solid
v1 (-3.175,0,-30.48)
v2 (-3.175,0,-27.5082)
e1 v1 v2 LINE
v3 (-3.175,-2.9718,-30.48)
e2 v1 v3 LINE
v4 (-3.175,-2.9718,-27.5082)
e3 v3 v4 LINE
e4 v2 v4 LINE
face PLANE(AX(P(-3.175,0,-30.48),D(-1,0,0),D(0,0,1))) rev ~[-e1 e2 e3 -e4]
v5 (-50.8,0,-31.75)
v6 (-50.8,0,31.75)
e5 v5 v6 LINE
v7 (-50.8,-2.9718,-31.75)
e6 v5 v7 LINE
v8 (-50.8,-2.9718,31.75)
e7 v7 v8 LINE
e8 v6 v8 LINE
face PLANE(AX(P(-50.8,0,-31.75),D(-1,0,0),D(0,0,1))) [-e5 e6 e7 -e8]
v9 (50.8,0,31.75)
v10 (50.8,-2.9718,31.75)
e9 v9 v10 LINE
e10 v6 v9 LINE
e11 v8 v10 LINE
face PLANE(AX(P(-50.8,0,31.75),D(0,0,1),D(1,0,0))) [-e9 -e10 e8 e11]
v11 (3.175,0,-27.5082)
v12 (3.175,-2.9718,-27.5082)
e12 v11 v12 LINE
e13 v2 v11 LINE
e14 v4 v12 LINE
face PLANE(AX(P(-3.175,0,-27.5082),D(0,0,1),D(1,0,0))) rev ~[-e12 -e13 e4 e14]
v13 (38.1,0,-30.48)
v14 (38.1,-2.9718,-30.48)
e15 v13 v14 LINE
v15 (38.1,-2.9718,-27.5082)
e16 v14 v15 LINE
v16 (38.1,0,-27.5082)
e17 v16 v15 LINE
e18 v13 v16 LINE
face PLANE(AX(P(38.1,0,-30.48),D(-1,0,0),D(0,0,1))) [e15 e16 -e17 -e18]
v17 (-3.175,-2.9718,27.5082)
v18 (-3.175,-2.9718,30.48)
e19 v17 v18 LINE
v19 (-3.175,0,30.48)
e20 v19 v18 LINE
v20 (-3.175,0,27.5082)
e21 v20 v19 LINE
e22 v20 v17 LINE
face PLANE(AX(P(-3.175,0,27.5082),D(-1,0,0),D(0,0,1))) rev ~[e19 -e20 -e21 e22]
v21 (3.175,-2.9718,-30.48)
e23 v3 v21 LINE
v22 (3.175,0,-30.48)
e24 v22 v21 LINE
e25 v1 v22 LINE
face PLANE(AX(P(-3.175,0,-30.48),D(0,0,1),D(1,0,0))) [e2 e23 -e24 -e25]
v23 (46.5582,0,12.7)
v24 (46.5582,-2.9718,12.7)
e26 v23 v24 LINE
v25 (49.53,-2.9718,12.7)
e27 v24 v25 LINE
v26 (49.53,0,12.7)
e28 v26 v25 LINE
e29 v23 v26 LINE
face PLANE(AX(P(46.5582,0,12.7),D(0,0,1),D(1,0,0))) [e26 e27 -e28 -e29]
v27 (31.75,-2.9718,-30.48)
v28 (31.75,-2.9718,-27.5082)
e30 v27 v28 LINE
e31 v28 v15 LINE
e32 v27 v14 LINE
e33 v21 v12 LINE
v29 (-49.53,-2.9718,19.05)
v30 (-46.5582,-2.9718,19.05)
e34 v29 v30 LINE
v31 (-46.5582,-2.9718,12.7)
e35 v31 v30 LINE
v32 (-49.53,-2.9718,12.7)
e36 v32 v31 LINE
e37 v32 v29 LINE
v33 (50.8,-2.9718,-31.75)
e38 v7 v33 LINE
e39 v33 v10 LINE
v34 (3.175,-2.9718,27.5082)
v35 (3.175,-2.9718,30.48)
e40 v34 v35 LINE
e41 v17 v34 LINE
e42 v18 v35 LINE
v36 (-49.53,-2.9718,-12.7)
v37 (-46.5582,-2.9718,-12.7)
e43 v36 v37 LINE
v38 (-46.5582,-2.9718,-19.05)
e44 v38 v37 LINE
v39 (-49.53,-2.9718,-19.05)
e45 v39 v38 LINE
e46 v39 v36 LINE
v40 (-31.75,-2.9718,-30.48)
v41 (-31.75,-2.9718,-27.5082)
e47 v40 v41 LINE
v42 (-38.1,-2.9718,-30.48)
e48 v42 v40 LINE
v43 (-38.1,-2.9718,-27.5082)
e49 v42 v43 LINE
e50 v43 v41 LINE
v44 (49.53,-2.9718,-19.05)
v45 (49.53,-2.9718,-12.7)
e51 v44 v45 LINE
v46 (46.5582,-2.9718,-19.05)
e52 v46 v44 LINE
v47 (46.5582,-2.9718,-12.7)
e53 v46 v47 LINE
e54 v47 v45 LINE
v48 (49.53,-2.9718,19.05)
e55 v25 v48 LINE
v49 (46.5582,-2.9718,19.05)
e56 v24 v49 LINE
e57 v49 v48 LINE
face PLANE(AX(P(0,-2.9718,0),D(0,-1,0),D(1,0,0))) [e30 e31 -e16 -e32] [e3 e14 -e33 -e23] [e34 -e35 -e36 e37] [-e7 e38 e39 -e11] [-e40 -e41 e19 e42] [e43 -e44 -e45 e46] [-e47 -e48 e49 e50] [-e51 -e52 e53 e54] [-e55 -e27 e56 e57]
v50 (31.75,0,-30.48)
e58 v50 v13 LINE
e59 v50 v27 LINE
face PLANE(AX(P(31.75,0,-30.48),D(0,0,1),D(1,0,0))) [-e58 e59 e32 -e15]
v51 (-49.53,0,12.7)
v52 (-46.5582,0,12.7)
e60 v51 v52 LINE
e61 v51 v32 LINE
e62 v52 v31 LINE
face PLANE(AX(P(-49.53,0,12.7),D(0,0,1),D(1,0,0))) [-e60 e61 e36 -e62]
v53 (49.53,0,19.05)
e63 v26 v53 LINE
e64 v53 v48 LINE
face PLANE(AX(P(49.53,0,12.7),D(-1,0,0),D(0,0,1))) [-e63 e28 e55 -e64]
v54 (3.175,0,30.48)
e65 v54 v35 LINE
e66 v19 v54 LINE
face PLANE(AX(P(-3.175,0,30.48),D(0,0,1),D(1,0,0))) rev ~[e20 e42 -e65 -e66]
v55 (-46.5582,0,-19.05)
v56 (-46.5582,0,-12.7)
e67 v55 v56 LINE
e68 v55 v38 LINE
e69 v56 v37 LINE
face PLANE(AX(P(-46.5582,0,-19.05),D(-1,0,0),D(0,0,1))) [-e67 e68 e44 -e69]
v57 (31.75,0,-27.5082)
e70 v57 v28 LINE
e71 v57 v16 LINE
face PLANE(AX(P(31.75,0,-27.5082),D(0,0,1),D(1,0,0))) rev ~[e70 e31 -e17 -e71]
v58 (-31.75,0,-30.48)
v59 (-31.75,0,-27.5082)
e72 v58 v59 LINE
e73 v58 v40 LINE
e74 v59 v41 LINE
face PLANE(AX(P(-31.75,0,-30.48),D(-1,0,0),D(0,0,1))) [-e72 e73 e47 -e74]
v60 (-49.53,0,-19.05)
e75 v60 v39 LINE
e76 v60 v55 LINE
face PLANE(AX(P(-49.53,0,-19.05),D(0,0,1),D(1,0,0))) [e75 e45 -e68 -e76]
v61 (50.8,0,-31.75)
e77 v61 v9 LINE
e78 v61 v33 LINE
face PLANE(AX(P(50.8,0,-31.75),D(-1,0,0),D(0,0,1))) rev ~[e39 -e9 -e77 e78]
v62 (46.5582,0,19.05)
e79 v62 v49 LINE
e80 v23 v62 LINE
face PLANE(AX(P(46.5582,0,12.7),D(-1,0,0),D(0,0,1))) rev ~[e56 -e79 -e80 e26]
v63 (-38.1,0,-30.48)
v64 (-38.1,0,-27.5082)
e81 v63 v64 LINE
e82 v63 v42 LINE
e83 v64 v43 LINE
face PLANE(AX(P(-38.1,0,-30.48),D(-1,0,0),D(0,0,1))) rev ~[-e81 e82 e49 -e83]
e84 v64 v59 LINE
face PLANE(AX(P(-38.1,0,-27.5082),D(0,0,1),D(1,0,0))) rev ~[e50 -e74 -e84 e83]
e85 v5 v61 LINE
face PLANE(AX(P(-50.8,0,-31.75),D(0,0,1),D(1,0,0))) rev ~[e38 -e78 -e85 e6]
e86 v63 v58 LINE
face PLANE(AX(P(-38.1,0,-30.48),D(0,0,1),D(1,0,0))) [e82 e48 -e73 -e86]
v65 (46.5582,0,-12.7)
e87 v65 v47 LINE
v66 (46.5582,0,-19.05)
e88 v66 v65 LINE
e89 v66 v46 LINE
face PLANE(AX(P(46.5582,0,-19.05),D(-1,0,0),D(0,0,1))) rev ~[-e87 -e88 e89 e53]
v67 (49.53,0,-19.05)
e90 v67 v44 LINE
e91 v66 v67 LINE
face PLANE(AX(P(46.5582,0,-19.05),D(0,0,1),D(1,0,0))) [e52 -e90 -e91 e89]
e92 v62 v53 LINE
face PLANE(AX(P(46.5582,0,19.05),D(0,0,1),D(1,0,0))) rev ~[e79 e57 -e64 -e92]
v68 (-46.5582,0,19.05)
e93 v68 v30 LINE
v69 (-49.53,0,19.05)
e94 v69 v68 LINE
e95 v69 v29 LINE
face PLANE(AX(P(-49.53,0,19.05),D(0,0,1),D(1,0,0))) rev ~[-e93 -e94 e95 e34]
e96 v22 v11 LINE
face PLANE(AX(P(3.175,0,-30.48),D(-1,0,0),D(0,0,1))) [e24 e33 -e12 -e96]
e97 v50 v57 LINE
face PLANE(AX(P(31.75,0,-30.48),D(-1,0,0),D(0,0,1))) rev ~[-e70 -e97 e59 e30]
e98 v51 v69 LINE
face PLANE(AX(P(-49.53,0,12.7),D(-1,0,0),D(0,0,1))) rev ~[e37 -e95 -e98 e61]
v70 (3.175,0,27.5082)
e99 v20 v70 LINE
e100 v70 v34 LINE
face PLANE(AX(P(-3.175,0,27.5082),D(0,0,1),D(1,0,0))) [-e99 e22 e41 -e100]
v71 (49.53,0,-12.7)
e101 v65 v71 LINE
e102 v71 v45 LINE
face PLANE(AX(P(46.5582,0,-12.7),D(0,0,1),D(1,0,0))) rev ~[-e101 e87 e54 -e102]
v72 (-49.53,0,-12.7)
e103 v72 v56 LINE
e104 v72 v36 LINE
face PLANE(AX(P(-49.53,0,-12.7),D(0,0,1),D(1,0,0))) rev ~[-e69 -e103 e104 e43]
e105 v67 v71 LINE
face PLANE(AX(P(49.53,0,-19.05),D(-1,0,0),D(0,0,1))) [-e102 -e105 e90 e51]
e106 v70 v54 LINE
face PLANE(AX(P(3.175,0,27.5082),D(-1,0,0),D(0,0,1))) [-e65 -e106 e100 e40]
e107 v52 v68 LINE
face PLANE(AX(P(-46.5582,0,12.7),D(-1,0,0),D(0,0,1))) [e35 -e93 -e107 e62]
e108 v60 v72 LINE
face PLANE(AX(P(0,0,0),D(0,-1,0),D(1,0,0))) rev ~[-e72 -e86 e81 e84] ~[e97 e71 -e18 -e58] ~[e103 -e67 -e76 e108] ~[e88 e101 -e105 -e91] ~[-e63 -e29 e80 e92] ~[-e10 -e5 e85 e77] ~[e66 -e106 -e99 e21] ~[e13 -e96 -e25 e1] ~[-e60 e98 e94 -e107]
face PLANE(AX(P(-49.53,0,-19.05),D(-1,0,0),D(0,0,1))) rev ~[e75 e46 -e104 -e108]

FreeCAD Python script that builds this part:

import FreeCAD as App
import Part
import Sketcher
Q = App.Units.Quantity

doc = App.newDocument("Part")
body = doc.addObject("PartDesign::Body", "Body")

sketch1 = doc.addObject("Sketcher::SketchObject", "Sketch")
body.addObject(sketch1)
sketch1.AttachmentSupport = (doc.XZ_Plane, [""])
sketch1.MapMode = "FlatFace"
sketch1.addGeometry(Part.LineSegment(App.Vector(-50.8, 31.8, 0), App.Vector(-50.8, -31.8, 0)), False)
sketch1.addGeometry(Part.LineSegment(App.Vector(-50.8, -31.8, 0), App.Vector(50.8, -31.8, 0)), False)
sketch1.addGeometry(Part.LineSegment(App.Vector(50.8, -31.8, 0), App.Vector(50.8, 31.8, 0)), False)
sketch1.addGeometry(Part.LineSegment(App.Vector(50.8, 31.8, 0), App.Vector(-50.8, 31.8, 0)), False)
sketch1.addGeometry(Part.LineSegment(App.Vector(-31.8, -30.5, 0), App.Vector(-38.1, -30.5, 0)), False)
sketch1.addGeometry(Part.LineSegment(App.Vector(-38.1, -30.5, 0), App.Vector(-38.1, -27.5, 0)), False)
sketch1.addGeometry(Part.LineSegment(App.Vector(-38.1, -27.5, 0), App.Vector(-31.8, -27.5, 0)), False)
sketch1.addGeometry(Part.LineSegment(App.Vector(-31.8, -27.5, 0), App.Vector(-31.8, -30.5, 0)), False)
sketch1.addGeometry(Part.LineSegment(App.Vector(-46.6, -19.1, 0), App.Vector(-49.5, -19.1, 0)), False)
sketch1.addGeometry(Part.LineSegment(App.Vector(-49.5, -19.1, 0), App.Vector(-49.5, -12.7, 0)), False)
sketch1.addGeometry(Part.LineSegment(App.Vector(-49.5, -12.7, 0), App.Vector(-46.6, -12.7, 0)), False)
sketch1.addGeometry(Part.LineSegment(App.Vector(-46.6, -12.7, 0), App.Vector(-46.6, -19.1, 0)), False)
sketch1.addGeometry(Part.LineSegment(App.Vector(3.2, -30.5, 0), App.Vector(-3.2, -30.5, 0)), False)
sketch1.addGeometry(Part.LineSegment(App.Vector(-3.2, -30.5, 0), App.Vector(-3.2, -27.5, 0)), False)
sketch1.addGeometry(Part.LineSegment(App.Vector(-3.2, -27.5, 0), App.Vector(3.2, -27.5, 0)), False)
sketch1.addGeometry(Part.LineSegment(App.Vector(3.2, -27.5, 0), App.Vector(3.2, -30.5, 0)), False)
sketch1.addGeometry(Part.LineSegment(App.Vector(38.1, -30.5, 0), App.Vector(31.8, -30.5, 0)), False)
sketch1.addGeometry(Part.LineSegment(App.Vector(31.8, -30.5, 0), App.Vector(31.8, -27.5, 0)), False)
sketch1.addGeometry(Part.LineSegment(App.Vector(31.8, -27.5, 0), App.Vector(38.1, -27.5, 0)), False)
sketch1.addGeometry(Part.LineSegment(App.Vector(38.1, -27.5, 0), App.Vector(38.1, -30.5, 0)), False)
sketch1.addGeometry(Part.LineSegment(App.Vector(49.5, -19.1, 0), App.Vector(46.6, -19.1, 0)), False)
sketch1.addGeometry(Part.LineSegment(App.Vector(46.6, -19.1, 0), App.Vector(46.6, -12.7, 0)), False)
sketch1.addGeometry(Part.LineSegment(App.Vector(46.6, -12.7, 0), App.Vector(49.5, -12.7, 0)), False)
sketch1.addGeometry(Part.LineSegment(App.Vector(49.5, -12.7, 0), App.Vector(49.5, -19.1, 0)), False)
sketch1.addGeometry(Part.LineSegment(App.Vector(-46.6, 12.7, 0), App.Vector(-49.5, 12.7, 0)), False)
sketch1.addGeometry(Part.LineSegment(App.Vector(-49.5, 12.7, 0), App.Vector(-49.5, 19.1, 0)), False)
sketch1.addGeometry(Part.LineSegment(App.Vector(-49.5, 19.1, 0), App.Vector(-46.6, 19.1, 0)), False)
sketch1.addGeometry(Part.LineSegment(App.Vector(-46.6, 19.1, 0), App.Vector(-46.6, 12.7, 0)), False)
sketch1.addGeometry(Part.LineSegment(App.Vector(3.2, 27.5, 0), App.Vector(-3.2, 27.5, 0)), False)
sketch1.addGeometry(Part.LineSegment(App.Vector(-3.2, 27.5, 0), App.Vector(-3.2, 30.5, 0)), False)
sketch1.addGeometry(Part.LineSegment(App.Vector(-3.2, 30.5, 0), App.Vector(3.2, 30.5, 0)), False)
sketch1.addGeometry(Part.LineSegment(App.Vector(3.2, 30.5, 0), App.Vector(3.2, 27.5, 0)), False)
sketch1.addGeometry(Part.LineSegment(App.Vector(49.5, 12.7, 0), App.Vector(46.6, 12.7, 0)), False)
sketch1.addGeometry(Part.LineSegment(App.Vector(46.6, 12.7, 0), App.Vector(46.6, 19.1, 0)), False)
sketch1.addGeometry(Part.LineSegment(App.Vector(46.6, 19.1, 0), App.Vector(49.5, 19.1, 0)), False)
sketch1.addGeometry(Part.LineSegment(App.Vector(49.5, 19.1, 0), App.Vector(49.5, 12.7, 0)), False)
sketch1.addConstraint(Sketcher.Constraint("Coincident", 0, 2, 1, 1))
sketch1.addConstraint(Sketcher.Constraint("Coincident", 1, 2, 2, 1))
sketch1.addConstraint(Sketcher.Constraint("Coincident", 2, 2, 3, 1))
sketch1.addConstraint(Sketcher.Constraint("Coincident", 3, 2, 0, 1))
sketch1.addConstraint(Sketcher.Constraint("Coincident", 4, 2, 5, 1))
sketch1.addConstraint(Sketcher.Constraint("Coincident", 5, 2, 6, 1))
sketch1.addConstraint(Sketcher.Constraint("Coincident", 6, 2, 7, 1))
sketch1.addConstraint(Sketcher.Constraint("Coincident", 7, 2, 4, 1))
sketch1.addConstraint(Sketcher.Constraint("Coincident", 8, 2, 9, 1))
sketch1.addConstraint(Sketcher.Constraint("Coincident", 9, 2, 10, 1))
sketch1.addConstraint(Sketcher.Constraint("Coincident", 10, 2, 11, 1))
sketch1.addConstraint(Sketcher.Constraint("Coincident", 11, 2, 8, 1))
sketch1.addConstraint(Sketcher.Constraint("Coincident", 12, 2, 13, 1))
sketch1.addConstraint(Sketcher.Constraint("Coincident", 13, 2, 14, 1))
sketch1.addConstraint(Sketcher.Constraint("Coincident", 14, 2, 15, 1))
sketch1.addConstraint(Sketcher.Constraint("Coincident", 15, 2, 12, 1))
sketch1.addConstraint(Sketcher.Constraint("Coincident", 16, 2, 17, 1))
sketch1.addConstraint(Sketcher.Constraint("Coincident", 17, 2, 18, 1))
sketch1.addConstraint(Sketcher.Constraint("Coincident", 18, 2, 19, 1))
sketch1.addConstraint(Sketcher.Constraint("Coincident", 19, 2, 16, 1))
sketch1.addConstraint(Sketcher.Constraint("Coincident", 20, 2, 21, 1))
sketch1.addConstraint(Sketcher.Constraint("Coincident", 21, 2, 22, 1))
sketch1.addConstraint(Sketcher.Constraint("Coincident", 22, 2, 23, 1))
sketch1.addConstraint(Sketcher.Constraint("Coincident", 23, 2, 20, 1))
sketch1.addConstraint(Sketcher.Constraint("Coincident", 24, 2, 25, 1))
sketch1.addConstraint(Sketcher.Constraint("Coincident", 25, 2, 26, 1))
sketch1.addConstraint(Sketcher.Constraint("Coincident", 26, 2, 27, 1))
sketch1.addConstraint(Sketcher.Constraint("Coincident", 27, 2, 24, 1))
sketch1.addConstraint(Sketcher.Constraint("Coincident", 28, 2, 29, 1))
sketch1.addConstraint(Sketcher.Constraint("Coincident", 29, 2, 30, 1))
sketch1.addConstraint(Sketcher.Constraint("Coincident", 30, 2, 31, 1))
sketch1.addConstraint(Sketcher.Constraint("Coincident", 31, 2, 28, 1))
sketch1.addConstraint(Sketcher.Constraint("Coincident", 32, 2, 33, 1))
sketch1.addConstraint(Sketcher.Constraint("Coincident", 33, 2, 34, 1))
sketch1.addConstraint(Sketcher.Constraint("Coincident", 34, 2, 35, 1))
sketch1.addConstraint(Sketcher.Constraint("Coincident", 35, 2, 32, 1))
sketch1.addConstraint(Sketcher.Constraint("Vertical", 0))
sketch1.addConstraint(Sketcher.Constraint("Horizontal", 1))
sketch1.addConstraint(Sketcher.Constraint("Vertical", 2))
sketch1.addConstraint(Sketcher.Constraint("Horizontal", 3))
sketch1.addConstraint(Sketcher.Constraint("Horizontal", 4))
sketch1.addConstraint(Sketcher.Constraint("Vertical", 5))
sketch1.addConstraint(Sketcher.Constraint("Horizontal", 6))
sketch1.addConstraint(Sketcher.Constraint("Vertical", 7))
sketch1.addConstraint(Sketcher.Constraint("Horizontal", 8))
sketch1.addConstraint(Sketcher.Constraint("Vertical", 9))
sketch1.addConstraint(Sketcher.Constraint("Horizontal", 10))
sketch1.addConstraint(Sketcher.Constraint("Vertical", 11))
sketch1.addConstraint(Sketcher.Constraint("Horizontal", 12))
sketch1.addConstraint(Sketcher.Constraint("Vertical", 13))
sketch1.addConstraint(Sketcher.Constraint("Horizontal", 14))
sketch1.addConstraint(Sketcher.Constraint("Vertical", 15))
sketch1.addConstraint(Sketcher.Constraint("Horizontal", 16))
sketch1.addConstraint(Sketcher.Constraint("Vertical", 17))
sketch1.addConstraint(Sketcher.Constraint("Horizontal", 18))
sketch1.addConstraint(Sketcher.Constraint("Vertical", 19))
sketch1.addConstraint(Sketcher.Constraint("Horizontal", 20))
sketch1.addConstraint(Sketcher.Constraint("Vertical", 21))
sketch1.addConstraint(Sketcher.Constraint("Horizontal", 22))
sketch1.addConstraint(Sketcher.Constraint("Vertical", 23))
sketch1.addConstraint(Sketcher.Constraint("Horizontal", 24))
sketch1.addConstraint(Sketcher.Constraint("Vertical", 25))
sketch1.addConstraint(Sketcher.Constraint("Horizontal", 26))
sketch1.addConstraint(Sketcher.Constraint("Vertical", 27))
sketch1.addConstraint(Sketcher.Constraint("Horizontal", 28))
sketch1.addConstraint(Sketcher.Constraint("Vertical", 29))
sketch1.addConstraint(Sketcher.Constraint("Horizontal", 30))
sketch1.addConstraint(Sketcher.Constraint("Vertical", 31))
sketch1.addConstraint(Sketcher.Constraint("Horizontal", 32))
sketch1.addConstraint(Sketcher.Constraint("Vertical", 33))
sketch1.addConstraint(Sketcher.Constraint("Horizontal", 34))
sketch1.addConstraint(Sketcher.Constraint("Vertical", 35))
sketch1.addConstraint(Sketcher.Constraint("Symmetric", 0, 2, 2, 2, -1, 1))
sketch1.addConstraint(Sketcher.Constraint("Symmetric", 22, 2, 24, 2, -1, 1))
sketch1.addConstraint(Sketcher.Constraint("Symmetric", 20, 2, 26, 2, -1, 1))
sketch1.addConstraint(Sketcher.Constraint("Symmetric", 14, 2, 28, 2, -1, 1))
sketch1.addConstraint(Sketcher.Constraint("Symmetric", 12, 2, 30, 2, -1, 1))
sketch1.addConstraint(Sketcher.Constraint("Symmetric", 10, 2, 32, 2, -1, 1))
sketch1.addConstraint(Sketcher.Constraint("Symmetric", 8, 2, 34, 2, -1, 1))
sketch1.addConstraint(Sketcher.Constraint("Symmetric", 7, 2, 16, 2, -2))
sketch1.addConstraint(Sketcher.Constraint("Symmetric", 5, 2, 18, 2, -2))
sketch1.addConstraint(Sketcher.Constraint("Symmetric", 11, 2, 20, 2, -2))
sketch1.addConstraint(Sketcher.Constraint("Symmetric", 9, 2, 22, 2, -2))
sketch1.addConstraint(Sketcher.Constraint("Horizontal", 7, 2, 12, 2))
sketch1.addConstraint(Sketcher.Constraint("Horizontal", 6, 2, 13, 2))
sketch1.addConstraint(Sketcher.Constraint("Vertical", 13, 2, 28, 2))
sketch1.addConstraint(Sketcher.Constraint("Equal", 6, 12))
sketch1.addConstraint(Sketcher.Constraint("Equal", 34, 5))
sketch1.addConstraint(Sketcher.Constraint("Equal", 30, 9))
sketch1.addConstraint(Sketcher.Constraint("DistanceX", 1, 1, 1, 2, Q("4 in")))
sketch1.addConstraint(Sketcher.Constraint("DistanceY", 0, 2, 0, 1, Q("2.5 in")))
sketch1.addConstraint(Sketcher.Constraint("DistanceY", 9, 2, 24, 2, Q("1 in")))
sketch1.addConstraint(Sketcher.Constraint("DistanceX", 4, 2, 4, 1, Q("0.25 in")))
sketch1.addConstraint(Sketcher.Constraint("DistanceX", 4, 2, -1, 1, Q("1.5 in")))
sketch1.addConstraint(Sketcher.Constraint("DistanceY", 4, 2, -1, 1, Q("1.2 in")))
sketch1.addConstraint(Sketcher.Constraint("DistanceX", 8, 2, 6, 2, Q("0.7 in")))
sketch1.addConstraint(Sketcher.Constraint("DistanceX", 8, 2, 8, 1, Q("0.117 in")))
pad1 = doc.addObject("PartDesign::Pad", "Pad")
body.addObject(pad1)
pad1.Profile = sketch1
pad1.Length = Q("0.117 in")

doc.recompute()
